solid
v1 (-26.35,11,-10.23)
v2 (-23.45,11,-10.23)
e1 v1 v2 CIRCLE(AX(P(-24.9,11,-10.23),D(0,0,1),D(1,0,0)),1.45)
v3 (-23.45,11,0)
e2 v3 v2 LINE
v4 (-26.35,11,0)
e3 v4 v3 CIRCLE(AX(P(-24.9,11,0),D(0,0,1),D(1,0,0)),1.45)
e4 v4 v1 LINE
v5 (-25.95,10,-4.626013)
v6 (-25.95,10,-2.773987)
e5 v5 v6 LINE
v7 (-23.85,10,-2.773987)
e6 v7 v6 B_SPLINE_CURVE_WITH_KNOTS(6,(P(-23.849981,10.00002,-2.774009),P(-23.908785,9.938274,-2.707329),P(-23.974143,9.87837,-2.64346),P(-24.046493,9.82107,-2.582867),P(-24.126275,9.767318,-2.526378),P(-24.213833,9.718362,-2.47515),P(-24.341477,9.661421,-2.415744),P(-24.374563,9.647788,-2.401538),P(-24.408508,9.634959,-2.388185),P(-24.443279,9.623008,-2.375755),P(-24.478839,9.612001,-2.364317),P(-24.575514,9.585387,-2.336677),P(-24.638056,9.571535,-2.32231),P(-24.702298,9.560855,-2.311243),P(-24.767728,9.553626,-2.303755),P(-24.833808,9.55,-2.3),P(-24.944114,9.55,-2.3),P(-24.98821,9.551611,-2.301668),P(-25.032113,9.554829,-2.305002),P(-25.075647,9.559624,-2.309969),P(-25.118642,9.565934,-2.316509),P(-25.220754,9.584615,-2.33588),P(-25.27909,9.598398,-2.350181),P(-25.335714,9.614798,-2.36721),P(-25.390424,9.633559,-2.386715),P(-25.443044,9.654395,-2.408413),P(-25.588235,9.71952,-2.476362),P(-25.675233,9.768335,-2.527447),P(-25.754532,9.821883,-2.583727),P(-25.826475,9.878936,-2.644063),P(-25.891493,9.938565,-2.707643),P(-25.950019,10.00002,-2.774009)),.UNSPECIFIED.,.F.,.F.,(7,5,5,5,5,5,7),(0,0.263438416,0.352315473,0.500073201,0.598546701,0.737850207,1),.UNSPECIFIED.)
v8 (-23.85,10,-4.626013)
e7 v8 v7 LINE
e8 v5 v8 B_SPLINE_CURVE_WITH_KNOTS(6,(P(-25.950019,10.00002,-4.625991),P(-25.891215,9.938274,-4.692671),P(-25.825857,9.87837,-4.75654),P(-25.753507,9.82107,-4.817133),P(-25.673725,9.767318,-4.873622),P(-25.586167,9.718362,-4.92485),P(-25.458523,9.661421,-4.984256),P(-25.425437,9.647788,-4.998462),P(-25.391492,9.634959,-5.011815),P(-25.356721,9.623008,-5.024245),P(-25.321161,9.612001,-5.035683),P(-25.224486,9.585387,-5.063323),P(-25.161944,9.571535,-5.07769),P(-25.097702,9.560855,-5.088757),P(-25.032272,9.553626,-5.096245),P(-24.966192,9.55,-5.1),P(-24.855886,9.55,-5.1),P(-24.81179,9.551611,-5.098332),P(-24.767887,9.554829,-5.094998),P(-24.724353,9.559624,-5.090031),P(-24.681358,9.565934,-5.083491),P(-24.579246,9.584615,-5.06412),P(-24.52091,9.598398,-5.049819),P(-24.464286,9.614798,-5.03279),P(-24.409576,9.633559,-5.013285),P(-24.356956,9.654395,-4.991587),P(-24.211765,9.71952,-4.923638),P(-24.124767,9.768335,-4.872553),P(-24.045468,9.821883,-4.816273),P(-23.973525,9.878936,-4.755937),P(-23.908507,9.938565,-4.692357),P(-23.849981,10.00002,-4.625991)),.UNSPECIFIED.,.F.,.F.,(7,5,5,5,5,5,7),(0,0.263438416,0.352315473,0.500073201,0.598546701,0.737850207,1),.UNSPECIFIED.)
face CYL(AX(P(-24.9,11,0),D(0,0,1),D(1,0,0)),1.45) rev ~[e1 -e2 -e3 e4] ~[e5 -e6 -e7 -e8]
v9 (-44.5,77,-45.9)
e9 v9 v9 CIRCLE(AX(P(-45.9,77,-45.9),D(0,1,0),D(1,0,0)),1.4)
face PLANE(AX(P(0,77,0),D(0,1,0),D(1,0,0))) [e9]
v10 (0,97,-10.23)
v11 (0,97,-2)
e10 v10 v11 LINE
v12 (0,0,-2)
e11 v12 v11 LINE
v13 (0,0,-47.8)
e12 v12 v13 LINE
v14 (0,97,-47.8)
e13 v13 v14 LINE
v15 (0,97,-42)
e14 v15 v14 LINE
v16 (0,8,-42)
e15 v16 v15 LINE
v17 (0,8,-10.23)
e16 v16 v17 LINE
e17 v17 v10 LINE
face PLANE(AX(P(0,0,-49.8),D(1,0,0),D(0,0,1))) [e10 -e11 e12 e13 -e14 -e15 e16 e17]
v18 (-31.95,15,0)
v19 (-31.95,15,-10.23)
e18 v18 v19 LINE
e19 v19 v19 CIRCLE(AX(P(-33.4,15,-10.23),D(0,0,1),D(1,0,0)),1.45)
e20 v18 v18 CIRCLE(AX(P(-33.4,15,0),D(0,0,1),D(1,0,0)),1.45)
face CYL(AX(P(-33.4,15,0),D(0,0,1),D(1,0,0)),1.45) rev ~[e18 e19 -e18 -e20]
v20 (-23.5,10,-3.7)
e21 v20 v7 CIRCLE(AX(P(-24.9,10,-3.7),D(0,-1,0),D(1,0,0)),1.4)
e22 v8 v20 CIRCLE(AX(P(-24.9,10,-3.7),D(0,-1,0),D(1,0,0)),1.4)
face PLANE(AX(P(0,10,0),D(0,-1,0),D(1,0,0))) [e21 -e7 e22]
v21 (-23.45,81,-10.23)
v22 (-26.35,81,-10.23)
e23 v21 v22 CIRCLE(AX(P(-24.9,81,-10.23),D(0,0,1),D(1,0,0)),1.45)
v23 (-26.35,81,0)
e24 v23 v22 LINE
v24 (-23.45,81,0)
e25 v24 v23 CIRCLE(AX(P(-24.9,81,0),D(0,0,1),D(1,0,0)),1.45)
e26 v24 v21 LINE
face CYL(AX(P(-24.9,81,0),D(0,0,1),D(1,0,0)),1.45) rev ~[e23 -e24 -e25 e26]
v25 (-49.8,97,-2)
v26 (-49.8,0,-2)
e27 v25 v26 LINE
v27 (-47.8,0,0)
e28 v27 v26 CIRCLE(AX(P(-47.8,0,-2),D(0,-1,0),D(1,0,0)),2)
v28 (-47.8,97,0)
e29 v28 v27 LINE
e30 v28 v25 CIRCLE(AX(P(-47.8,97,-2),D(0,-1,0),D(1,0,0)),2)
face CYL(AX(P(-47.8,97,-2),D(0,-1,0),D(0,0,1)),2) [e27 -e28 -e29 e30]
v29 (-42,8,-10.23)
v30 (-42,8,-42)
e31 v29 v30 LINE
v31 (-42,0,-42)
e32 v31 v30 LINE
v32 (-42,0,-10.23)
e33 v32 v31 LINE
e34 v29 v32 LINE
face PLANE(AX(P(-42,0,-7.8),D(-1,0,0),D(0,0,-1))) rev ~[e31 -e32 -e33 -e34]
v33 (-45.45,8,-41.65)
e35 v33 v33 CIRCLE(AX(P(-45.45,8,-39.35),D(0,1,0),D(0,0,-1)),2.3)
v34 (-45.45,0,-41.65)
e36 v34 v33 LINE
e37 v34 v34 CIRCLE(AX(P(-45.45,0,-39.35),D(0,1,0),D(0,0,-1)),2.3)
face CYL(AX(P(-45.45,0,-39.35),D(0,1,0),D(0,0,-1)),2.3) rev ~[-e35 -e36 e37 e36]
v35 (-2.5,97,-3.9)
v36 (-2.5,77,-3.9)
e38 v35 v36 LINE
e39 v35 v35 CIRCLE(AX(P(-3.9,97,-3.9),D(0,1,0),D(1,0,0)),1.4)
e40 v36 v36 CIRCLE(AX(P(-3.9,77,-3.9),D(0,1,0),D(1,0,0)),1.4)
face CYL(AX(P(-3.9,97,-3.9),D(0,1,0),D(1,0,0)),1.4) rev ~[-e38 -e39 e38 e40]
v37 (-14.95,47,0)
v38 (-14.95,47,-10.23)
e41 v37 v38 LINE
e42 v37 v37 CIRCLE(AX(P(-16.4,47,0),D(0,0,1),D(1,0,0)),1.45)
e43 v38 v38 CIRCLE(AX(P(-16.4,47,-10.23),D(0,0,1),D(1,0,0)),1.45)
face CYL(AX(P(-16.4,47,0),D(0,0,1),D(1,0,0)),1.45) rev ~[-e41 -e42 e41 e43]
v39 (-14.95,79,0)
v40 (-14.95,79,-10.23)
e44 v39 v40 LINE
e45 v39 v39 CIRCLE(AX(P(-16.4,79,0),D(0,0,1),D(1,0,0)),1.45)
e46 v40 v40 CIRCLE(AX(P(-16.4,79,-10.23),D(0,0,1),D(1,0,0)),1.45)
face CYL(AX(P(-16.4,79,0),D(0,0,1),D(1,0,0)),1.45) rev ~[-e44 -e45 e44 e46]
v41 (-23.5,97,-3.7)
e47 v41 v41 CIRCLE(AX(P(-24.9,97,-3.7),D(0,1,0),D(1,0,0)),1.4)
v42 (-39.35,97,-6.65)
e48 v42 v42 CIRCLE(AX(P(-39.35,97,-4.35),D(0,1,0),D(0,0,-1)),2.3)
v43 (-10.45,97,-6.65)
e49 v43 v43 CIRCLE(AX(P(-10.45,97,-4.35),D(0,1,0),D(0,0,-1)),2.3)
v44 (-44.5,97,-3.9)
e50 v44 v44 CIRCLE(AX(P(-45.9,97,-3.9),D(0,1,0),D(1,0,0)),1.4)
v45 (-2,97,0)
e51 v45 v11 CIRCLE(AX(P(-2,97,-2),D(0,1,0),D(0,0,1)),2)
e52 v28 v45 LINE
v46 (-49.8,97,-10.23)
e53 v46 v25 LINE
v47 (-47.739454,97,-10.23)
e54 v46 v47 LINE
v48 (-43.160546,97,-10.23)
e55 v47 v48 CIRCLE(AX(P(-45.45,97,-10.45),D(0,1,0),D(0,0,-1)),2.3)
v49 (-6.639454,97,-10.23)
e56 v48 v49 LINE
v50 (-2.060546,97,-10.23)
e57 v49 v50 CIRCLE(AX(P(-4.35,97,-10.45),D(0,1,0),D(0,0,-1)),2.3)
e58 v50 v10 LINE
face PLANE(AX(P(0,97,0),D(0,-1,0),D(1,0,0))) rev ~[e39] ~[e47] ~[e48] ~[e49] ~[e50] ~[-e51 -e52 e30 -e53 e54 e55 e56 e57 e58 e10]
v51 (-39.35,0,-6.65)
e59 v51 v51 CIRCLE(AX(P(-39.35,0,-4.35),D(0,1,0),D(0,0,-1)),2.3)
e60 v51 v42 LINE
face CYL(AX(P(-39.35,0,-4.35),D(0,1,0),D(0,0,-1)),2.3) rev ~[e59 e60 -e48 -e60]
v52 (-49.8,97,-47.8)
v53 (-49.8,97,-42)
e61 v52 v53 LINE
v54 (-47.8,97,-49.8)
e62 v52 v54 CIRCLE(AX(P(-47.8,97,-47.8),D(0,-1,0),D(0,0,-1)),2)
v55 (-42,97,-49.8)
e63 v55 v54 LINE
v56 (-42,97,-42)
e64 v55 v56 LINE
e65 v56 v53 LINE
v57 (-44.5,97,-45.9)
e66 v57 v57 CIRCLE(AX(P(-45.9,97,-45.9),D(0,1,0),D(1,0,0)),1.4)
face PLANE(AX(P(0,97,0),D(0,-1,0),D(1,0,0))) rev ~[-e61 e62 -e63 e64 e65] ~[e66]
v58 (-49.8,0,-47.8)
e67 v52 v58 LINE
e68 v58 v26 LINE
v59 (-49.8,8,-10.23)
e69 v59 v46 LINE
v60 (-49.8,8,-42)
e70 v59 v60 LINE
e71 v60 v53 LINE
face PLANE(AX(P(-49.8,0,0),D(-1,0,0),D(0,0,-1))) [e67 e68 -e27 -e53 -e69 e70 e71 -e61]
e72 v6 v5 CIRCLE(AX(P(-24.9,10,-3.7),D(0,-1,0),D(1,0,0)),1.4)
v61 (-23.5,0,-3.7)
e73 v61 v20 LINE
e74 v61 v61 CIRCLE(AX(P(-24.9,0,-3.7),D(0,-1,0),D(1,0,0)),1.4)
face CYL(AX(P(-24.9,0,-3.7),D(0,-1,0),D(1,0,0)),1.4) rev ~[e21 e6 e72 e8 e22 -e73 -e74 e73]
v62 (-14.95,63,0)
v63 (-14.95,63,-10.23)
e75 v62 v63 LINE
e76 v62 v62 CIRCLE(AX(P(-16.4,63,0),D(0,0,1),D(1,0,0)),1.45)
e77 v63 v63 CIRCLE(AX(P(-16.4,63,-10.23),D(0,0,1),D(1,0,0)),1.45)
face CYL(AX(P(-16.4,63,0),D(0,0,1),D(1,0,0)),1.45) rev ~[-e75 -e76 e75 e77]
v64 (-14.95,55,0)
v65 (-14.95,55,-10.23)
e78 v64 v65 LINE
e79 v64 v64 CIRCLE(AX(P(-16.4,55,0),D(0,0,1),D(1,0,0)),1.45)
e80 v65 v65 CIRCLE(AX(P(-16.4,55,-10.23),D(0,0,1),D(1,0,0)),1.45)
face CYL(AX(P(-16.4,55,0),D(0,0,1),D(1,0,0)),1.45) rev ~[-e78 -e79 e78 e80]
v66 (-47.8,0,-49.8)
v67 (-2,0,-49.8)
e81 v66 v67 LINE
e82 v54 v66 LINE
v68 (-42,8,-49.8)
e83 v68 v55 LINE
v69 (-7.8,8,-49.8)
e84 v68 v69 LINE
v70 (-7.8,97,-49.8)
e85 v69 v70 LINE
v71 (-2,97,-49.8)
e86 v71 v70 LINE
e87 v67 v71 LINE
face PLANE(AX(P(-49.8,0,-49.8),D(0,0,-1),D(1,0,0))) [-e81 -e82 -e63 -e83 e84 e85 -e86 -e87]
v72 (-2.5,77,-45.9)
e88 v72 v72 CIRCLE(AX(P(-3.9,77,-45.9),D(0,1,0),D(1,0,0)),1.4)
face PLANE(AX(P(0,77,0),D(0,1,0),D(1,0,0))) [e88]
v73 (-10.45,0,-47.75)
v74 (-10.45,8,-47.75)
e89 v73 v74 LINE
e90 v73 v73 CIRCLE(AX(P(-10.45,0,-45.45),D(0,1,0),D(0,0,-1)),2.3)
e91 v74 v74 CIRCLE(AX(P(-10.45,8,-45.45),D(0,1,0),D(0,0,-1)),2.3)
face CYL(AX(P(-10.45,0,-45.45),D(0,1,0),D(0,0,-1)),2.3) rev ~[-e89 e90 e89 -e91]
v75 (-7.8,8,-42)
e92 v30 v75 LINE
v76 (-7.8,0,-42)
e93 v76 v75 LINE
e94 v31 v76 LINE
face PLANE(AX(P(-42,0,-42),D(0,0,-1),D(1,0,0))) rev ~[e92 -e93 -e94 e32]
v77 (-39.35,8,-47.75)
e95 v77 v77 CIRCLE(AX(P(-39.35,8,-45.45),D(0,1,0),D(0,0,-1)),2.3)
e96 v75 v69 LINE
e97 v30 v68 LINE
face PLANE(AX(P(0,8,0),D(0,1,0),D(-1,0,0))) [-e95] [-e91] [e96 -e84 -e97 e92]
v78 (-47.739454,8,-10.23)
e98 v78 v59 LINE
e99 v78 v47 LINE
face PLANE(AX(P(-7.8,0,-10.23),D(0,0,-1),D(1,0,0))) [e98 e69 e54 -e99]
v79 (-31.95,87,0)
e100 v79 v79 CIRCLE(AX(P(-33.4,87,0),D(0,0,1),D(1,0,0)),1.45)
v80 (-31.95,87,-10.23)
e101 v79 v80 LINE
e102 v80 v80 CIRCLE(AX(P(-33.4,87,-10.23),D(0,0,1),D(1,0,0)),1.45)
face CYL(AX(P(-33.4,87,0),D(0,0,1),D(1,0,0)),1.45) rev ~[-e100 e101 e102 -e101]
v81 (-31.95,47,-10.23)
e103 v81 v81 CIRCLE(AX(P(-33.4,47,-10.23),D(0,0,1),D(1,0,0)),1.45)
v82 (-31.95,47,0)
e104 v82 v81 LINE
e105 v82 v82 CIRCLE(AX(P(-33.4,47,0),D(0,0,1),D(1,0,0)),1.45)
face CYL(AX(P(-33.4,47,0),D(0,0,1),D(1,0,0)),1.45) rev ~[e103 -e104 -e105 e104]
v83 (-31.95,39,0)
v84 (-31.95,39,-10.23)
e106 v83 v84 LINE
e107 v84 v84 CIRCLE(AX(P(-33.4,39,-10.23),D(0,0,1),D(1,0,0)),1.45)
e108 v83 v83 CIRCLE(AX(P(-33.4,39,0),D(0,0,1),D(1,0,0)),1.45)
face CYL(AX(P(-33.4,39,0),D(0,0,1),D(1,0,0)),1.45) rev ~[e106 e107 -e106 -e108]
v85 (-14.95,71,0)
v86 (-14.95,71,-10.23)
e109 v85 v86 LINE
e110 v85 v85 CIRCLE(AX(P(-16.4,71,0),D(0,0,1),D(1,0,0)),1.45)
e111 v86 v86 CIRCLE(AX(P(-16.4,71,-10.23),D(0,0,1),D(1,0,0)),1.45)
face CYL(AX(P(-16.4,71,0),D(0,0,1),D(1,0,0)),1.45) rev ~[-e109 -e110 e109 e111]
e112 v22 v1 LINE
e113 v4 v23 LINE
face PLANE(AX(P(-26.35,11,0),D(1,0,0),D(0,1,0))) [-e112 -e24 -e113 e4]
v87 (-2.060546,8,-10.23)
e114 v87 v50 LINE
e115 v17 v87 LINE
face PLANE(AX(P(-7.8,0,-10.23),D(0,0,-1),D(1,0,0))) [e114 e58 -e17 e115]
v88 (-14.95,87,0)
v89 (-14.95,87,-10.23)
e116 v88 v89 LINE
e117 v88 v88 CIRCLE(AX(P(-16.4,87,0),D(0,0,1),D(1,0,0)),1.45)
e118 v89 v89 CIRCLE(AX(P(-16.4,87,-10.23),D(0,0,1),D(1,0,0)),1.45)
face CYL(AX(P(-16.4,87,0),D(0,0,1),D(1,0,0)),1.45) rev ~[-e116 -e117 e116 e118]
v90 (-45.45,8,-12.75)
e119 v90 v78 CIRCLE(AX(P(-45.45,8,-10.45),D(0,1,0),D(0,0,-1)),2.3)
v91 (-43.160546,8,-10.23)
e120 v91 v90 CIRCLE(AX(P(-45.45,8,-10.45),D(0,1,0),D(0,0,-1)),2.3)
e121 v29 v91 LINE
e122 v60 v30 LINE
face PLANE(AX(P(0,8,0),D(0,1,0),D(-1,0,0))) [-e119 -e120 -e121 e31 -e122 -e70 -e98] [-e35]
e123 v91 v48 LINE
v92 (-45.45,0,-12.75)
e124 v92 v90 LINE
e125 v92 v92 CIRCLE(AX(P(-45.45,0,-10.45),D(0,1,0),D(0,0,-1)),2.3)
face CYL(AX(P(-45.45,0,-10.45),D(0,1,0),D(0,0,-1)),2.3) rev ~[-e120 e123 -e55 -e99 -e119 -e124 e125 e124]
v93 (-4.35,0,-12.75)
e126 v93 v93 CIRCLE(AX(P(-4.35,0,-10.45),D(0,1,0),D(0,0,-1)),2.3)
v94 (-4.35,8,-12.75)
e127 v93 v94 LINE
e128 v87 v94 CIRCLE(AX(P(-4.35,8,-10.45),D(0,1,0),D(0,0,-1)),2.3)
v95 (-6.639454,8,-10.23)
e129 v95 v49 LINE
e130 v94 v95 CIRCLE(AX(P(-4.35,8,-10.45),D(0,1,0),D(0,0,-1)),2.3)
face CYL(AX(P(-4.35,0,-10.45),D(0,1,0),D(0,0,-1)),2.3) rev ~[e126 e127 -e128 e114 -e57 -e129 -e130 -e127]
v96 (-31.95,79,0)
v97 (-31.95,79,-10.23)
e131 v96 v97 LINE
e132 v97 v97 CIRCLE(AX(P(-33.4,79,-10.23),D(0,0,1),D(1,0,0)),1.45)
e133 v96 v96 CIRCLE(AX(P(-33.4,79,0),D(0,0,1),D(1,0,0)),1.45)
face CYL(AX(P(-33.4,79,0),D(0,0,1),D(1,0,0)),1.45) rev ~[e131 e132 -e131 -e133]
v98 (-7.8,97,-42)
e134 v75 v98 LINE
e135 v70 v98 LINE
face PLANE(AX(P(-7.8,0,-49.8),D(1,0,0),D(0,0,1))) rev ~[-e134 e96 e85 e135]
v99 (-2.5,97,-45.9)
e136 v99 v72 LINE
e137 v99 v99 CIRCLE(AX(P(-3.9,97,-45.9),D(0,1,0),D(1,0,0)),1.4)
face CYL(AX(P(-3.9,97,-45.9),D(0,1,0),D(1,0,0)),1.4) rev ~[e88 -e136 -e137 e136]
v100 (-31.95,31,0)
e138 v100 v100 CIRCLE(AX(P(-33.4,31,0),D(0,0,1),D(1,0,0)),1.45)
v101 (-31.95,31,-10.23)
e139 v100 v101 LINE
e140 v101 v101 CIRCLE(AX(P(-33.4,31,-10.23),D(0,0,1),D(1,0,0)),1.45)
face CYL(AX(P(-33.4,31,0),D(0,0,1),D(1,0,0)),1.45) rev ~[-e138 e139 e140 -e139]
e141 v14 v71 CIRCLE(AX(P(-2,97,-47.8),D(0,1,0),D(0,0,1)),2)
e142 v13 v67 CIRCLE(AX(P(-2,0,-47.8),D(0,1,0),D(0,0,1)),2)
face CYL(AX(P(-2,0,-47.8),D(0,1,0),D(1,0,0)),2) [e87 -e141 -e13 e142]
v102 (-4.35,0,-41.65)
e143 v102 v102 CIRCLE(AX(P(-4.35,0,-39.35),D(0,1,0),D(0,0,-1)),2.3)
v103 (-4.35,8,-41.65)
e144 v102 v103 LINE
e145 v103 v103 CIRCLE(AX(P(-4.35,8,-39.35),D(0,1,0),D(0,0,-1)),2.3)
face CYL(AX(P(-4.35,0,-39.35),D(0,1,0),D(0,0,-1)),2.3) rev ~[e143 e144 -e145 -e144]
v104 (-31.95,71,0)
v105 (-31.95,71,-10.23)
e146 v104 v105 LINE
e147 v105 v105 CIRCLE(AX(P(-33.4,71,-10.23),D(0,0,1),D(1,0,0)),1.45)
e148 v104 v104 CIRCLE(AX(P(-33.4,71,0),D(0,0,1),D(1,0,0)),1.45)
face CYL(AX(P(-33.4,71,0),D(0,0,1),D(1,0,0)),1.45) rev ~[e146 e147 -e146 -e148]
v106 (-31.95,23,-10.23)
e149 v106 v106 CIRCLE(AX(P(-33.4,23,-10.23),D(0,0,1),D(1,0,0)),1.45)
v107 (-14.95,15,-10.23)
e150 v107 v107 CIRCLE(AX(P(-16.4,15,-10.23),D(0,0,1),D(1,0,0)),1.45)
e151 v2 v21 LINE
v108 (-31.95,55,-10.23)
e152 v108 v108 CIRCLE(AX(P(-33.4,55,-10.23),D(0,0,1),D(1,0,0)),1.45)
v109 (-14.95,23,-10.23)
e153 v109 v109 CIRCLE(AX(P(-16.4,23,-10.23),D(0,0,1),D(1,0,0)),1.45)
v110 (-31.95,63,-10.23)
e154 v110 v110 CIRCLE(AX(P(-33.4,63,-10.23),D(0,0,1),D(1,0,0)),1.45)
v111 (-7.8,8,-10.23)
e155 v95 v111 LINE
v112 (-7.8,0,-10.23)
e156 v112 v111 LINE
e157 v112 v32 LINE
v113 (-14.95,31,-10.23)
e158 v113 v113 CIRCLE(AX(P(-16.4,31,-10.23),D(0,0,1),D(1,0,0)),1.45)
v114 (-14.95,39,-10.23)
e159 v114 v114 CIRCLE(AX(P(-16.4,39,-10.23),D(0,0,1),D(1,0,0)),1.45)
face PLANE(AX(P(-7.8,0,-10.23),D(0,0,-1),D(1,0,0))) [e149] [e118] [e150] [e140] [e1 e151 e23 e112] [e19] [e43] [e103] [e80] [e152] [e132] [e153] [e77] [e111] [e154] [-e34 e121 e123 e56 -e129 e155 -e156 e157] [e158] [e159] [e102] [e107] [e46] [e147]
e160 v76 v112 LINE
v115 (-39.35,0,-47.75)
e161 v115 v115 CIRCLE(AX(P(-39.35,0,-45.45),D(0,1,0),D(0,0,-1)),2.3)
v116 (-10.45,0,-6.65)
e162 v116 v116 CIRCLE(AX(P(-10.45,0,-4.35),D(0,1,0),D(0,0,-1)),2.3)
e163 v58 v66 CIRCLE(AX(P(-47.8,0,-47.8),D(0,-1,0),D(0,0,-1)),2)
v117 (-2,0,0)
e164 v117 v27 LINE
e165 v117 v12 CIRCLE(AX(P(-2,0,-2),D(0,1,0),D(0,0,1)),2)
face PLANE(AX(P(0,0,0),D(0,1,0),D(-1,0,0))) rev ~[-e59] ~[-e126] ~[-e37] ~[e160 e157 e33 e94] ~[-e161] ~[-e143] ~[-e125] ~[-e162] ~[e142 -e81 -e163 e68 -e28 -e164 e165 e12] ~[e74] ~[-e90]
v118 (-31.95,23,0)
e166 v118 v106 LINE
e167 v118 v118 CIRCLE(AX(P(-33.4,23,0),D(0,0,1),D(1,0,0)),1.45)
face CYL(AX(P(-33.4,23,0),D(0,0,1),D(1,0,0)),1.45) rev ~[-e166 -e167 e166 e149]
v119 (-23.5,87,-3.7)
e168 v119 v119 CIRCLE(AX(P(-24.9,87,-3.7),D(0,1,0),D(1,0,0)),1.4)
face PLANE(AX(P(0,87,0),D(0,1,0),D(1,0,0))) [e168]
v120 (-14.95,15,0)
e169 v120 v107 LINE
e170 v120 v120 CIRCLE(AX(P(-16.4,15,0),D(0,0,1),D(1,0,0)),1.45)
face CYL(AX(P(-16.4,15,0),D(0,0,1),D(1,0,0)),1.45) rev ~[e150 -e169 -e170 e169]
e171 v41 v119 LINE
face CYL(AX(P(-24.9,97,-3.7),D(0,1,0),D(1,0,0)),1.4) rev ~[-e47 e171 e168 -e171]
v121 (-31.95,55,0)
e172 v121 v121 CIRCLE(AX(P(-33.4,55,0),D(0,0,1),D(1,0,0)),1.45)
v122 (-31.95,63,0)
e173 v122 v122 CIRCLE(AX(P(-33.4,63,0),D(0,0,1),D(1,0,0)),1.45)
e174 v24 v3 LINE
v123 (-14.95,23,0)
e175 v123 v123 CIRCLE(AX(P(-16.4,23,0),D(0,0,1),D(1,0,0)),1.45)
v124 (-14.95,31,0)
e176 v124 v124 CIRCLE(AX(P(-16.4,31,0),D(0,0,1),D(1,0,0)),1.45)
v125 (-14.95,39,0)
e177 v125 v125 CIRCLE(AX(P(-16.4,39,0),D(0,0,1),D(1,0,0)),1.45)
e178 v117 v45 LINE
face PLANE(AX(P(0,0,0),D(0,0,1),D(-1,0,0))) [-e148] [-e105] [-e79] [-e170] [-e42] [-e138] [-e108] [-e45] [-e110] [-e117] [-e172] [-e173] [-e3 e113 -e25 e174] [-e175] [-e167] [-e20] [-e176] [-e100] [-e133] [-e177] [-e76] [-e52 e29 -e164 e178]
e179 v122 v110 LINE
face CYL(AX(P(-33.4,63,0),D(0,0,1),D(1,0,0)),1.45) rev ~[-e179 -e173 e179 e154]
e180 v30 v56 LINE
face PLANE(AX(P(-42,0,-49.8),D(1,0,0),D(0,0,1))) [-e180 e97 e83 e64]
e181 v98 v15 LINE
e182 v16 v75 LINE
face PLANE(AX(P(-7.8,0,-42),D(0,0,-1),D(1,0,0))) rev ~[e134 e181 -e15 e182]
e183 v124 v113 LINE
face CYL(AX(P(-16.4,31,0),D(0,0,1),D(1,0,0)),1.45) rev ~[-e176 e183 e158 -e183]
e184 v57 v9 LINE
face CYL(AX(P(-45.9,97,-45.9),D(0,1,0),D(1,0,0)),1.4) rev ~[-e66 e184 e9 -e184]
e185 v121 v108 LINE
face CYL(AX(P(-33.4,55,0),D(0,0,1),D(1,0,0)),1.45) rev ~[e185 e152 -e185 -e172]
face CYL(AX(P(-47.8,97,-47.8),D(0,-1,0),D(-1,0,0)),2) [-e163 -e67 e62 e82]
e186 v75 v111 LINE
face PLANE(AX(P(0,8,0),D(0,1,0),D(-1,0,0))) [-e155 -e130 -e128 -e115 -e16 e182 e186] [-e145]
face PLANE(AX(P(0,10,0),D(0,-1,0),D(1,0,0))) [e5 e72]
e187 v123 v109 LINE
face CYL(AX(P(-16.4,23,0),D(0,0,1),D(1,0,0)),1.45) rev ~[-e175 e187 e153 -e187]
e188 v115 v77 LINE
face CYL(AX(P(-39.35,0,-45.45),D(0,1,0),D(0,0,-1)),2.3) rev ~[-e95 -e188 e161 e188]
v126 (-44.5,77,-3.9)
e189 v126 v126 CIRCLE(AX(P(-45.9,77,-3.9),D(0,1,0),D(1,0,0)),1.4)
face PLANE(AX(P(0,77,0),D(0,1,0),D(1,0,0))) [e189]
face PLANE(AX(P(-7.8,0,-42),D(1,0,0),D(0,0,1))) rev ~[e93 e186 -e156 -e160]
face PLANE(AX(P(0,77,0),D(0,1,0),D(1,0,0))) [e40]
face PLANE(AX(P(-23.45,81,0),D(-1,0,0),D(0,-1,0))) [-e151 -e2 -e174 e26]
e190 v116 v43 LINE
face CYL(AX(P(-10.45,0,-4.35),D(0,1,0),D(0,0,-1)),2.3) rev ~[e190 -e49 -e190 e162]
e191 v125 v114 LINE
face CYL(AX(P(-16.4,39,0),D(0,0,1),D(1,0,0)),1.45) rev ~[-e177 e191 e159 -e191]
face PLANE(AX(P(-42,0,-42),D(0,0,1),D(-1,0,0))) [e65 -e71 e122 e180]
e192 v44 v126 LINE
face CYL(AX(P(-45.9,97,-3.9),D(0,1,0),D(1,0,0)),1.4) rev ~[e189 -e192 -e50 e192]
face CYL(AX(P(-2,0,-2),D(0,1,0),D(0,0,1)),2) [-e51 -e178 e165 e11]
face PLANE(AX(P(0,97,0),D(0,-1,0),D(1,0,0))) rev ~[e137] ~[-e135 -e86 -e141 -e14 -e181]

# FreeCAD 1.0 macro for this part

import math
import FreeCAD as App
import Part
import Sketcher
from FreeCAD import Vector
Q = App.Units.Quantity


def edges_at(feature, points):
    """Names of the edges that pass closest to the given points."""
    edges = feature.Shape.Edges
    near = lambda p: min(range(len(edges)), key=lambda i: edges[i].distToShape(Part.Vertex(*p))[0])
    return sorted({f"Edge{near(p) + 1}" for p in points})

doc = App.newDocument("Part")
body = doc.addObject("PartDesign::Body", "Body")

# Sketch on XZ plane
sketch1 = body.newObject("Sketcher::SketchObject", "Sketch")
sketch1.AttachmentSupport = (doc.getObject("XZ_Plane"), [""])
sketch1.MapMode = "FlatFace"
sketch1.addGeometry(Part.LineSegment(Vector(-50, 0, 0), Vector(0, 0, 0)), False)
sketch1.addGeometry(Part.LineSegment(Vector(0, 0, 0), Vector(0, -50, 0)), False)
sketch1.addGeometry(Part.LineSegment(Vector(0, -50, 0), Vector(-50, -50, 0)), False)
sketch1.addGeometry(Part.LineSegment(Vector(-50, -50, 0), Vector(-50, 0, 0)), False)
sketch1.addGeometry(Part.LineSegment(Vector(-8, -42, 0), Vector(-8, -8, 0)), False)
sketch1.addGeometry(Part.LineSegment(Vector(-8, -8, 0), Vector(-42, -8, 0)), False)
sketch1.addGeometry(Part.LineSegment(Vector(-42, -8, 0), Vector(-42, -42, 0)), False)
sketch1.addGeometry(Part.LineSegment(Vector(-42, -42, 0), Vector(-8, -42, 0)), False)
sketch1.addConstraint(Sketcher.Constraint("Coincident", 0, 2, 1, 1))
sketch1.addConstraint(Sketcher.Constraint("Coincident", 1, 2, 2, 1))
sketch1.addConstraint(Sketcher.Constraint("Coincident", 2, 2, 3, 1))
sketch1.addConstraint(Sketcher.Constraint("Coincident", 3, 2, 0, 1))
sketch1.addConstraint(Sketcher.Constraint("Coincident", 4, 2, 5, 1))
sketch1.addConstraint(Sketcher.Constraint("Coincident", 5, 2, 6, 1))
sketch1.addConstraint(Sketcher.Constraint("Coincident", 6, 2, 7, 1))
sketch1.addConstraint(Sketcher.Constraint("Coincident", 7, 2, 4, 1))
sketch1.addConstraint(Sketcher.Constraint("Horizontal", 0))
sketch1.addConstraint(Sketcher.Constraint("Vertical", 1))
sketch1.addConstraint(Sketcher.Constraint("Horizontal", 2))
sketch1.addConstraint(Sketcher.Constraint("Vertical", 3))
sketch1.addConstraint(Sketcher.Constraint("Vertical", 4))
sketch1.addConstraint(Sketcher.Constraint("Horizontal", 5))
sketch1.addConstraint(Sketcher.Constraint("Vertical", 6))
sketch1.addConstraint(Sketcher.Constraint("Horizontal", 7))
sketch1.addConstraint(Sketcher.Constraint("Coincident", 0, 2, -1, 1))
sketch1.addConstraint(Sketcher.Constraint("Equal", 2, 1))
sketch1.addConstraint(Sketcher.Constraint("Equal", 7, 4))
sketch1.addConstraint(Sketcher.Constraint("DistanceX", 0, 1, 0, 2, Q("49.8 mm")))
sketch1.addConstraint(Sketcher.Constraint("DistanceX", 4, 2, -1, 1, Q("7.8 mm")))
sketch1.addConstraint(Sketcher.Constraint("DistanceY", 4, 2, -1, 1, Q("7.8 mm")))
sketch1.addConstraint(Sketcher.Constraint("DistanceX", 3, 2, 5, 2, Q("7.8 mm")))
pad1 = body.newObject("PartDesign::Pad", "Pad")
pad1.Profile = sketch1
pad1.Length = 8
pad1.Reversed = True

# Sketch on XZ plane
sketch2 = body.newObject("Sketcher::SketchObject", "Sketch001")
sketch2.AttachmentSupport = (doc.getObject("XZ_Plane"), [""])
sketch2.MapMode = "FlatFace"
sketch2.addGeometry(Part.LineSegment(Vector(0, 0, 0), Vector(-50, 0, 0)), False)
sketch2.addGeometry(Part.LineSegment(Vector(-50, 0, 0), Vector(-50, -10, 0)), False)
sketch2.addGeometry(Part.LineSegment(Vector(-50, -10, 0), Vector(0, -10, 0)), False)
sketch2.addGeometry(Part.LineSegment(Vector(0, -10, 0), Vector(0, 0, 0)), False)
sketch2.addGeometry(Part.LineSegment(Vector(-42, -42, 0), Vector(-50, -42, 0)), False)
sketch2.addGeometry(Part.LineSegment(Vector(-50, -42, 0), Vector(-50, -50, 0)), False)
sketch2.addGeometry(Part.LineSegment(Vector(-50, -50, 0), Vector(-42, -50, 0)), False)
sketch2.addGeometry(Part.LineSegment(Vector(-42, -50, 0), Vector(-42, -42, 0)), False)
sketch2.addGeometry(Part.LineSegment(Vector(0, -42, 0), Vector(-8, -42, 0)), False)
sketch2.addGeometry(Part.LineSegment(Vector(-8, -42, 0), Vector(-8, -50, 0)), False)
sketch2.addGeometry(Part.LineSegment(Vector(-8, -50, 0), Vector(0, -50, 0)), False)
sketch2.addGeometry(Part.LineSegment(Vector(0, -50, 0), Vector(0, -42, 0)), False)
sketch2.addConstraint(Sketcher.Constraint("Coincident", 0, 2, 1, 1))
sketch2.addConstraint(Sketcher.Constraint("Coincident", 1, 2, 2, 1))
sketch2.addConstraint(Sketcher.Constraint("Coincident", 2, 2, 3, 1))
sketch2.addConstraint(Sketcher.Constraint("Coincident", 3, 2, 0, 1))
sketch2.addConstraint(Sketcher.Constraint("Coincident", 4, 2, 5, 1))
sketch2.addConstraint(Sketcher.Constraint("Coincident", 5, 2, 6, 1))
sketch2.addConstraint(Sketcher.Constraint("Coincident", 6, 2, 7, 1))
sketch2.addConstraint(Sketcher.Constraint("Coincident", 7, 2, 4, 1))
sketch2.addConstraint(Sketcher.Constraint("Coincident", 8, 2, 9, 1))
sketch2.addConstraint(Sketcher.Constraint("Coincident", 9, 2, 10, 1))
sketch2.addConstraint(Sketcher.Constraint("Coincident", 10, 2, 11, 1))
sketch2.addConstraint(Sketcher.Constraint("Coincident", 11, 2, 8, 1))
sketch2.addConstraint(Sketcher.Constraint("Horizontal", 0))
sketch2.addConstraint(Sketcher.Constraint("Vertical", 1))
sketch2.addConstraint(Sketcher.Constraint("Horizontal", 2))
sketch2.addConstraint(Sketcher.Constraint("Vertical", 3))
sketch2.addConstraint(Sketcher.Constraint("Horizontal", 4))
sketch2.addConstraint(Sketcher.Constraint("Vertical", 5))
sketch2.addConstraint(Sketcher.Constraint("Horizontal", 6))
sketch2.addConstraint(Sketcher.Constraint("Vertical", 7))
sketch2.addConstraint(Sketcher.Constraint("Horizontal", 8))
sketch2.addConstraint(Sketcher.Constraint("Vertical", 9))
sketch2.addConstraint(Sketcher.Constraint("Horizontal", 10))
sketch2.addConstraint(Sketcher.Constraint("Vertical", 11))
sketch2.addConstraint(Sketcher.Constraint("Coincident", 3, 2, -1, 1))
sketch2.addConstraint(Sketcher.Constraint("PointOnObject", 10, 2, -2))
sketch2.addConstraint(Sketcher.Constraint("Horizontal", 7, 2, 8, 2))
sketch2.addConstraint(Sketcher.Constraint("Horizontal", 6, 2, 9, 2))
sketch2.addConstraint(Sketcher.Constraint("Vertical", 1, 2, 4, 2))
sketch2.addConstraint(Sketcher.Constraint("Equal", 6, 8))
sketch2.addConstraint(Sketcher.Constraint("Equal", 10, 5))
sketch2.addConstraint(Sketcher.Constraint("DistanceY", 1, 2, 1, 1, Q("10.23 mm")))
sketch2.addConstraint(Sketcher.Constraint("DistanceX", 0, 2, 0, 1, Q("49.8 mm")))
sketch2.addConstraint(Sketcher.Constraint("DistanceX", 4, 2, 4, 1, Q("7.8 mm")))
sketch2.addConstraint(Sketcher.Constraint("DistanceY", 4, 2, -1, 1, Q("42 mm")))
pad2 = body.newObject("PartDesign::Pad", "Pad001")
pad2.Profile = sketch2
pad2.Length = 97
pad2.Reversed = True

# Sketch on XY plane
sketch3 = body.newObject("Sketcher::SketchObject", "Sketch002")
sketch3.AttachmentSupport = (doc.getObject("XY_Plane"), [""])
sketch3.MapMode = "FlatFace"
sketch3.addGeometry(Part.ArcOfCircle(Part.Circle(Vector(-24.9, 81, 0), Vector(0, 0, 1), 1.4), math.radians(0), math.radians(180)), False)
sketch3.addGeometry(Part.LineSegment(Vector(-26.4, 81, 0), Vector(-26.4, 11, 0)), False)
sketch3.addGeometry(Part.ArcOfCircle(Part.Circle(Vector(-24.9, 11, 0), Vector(0, 0, 1), 1.4), math.radians(180), math.radians(360)), False)
sketch3.addGeometry(Part.LineSegment(Vector(-23.4, 11, 0), Vector(-23.4, 81, 0)), False)
sketch3.addGeometry(Part.Circle(Vector(-33.4, 87, 0), Vector(0, 0, 1), 1.4), False)
sketch3.addGeometry(Part.Circle(Vector(-16.4, 87, 0), Vector(0, 0, 1), 1.4), False)
sketch3.addGeometry(Part.Circle(Vector(-33.4, 79, 0), Vector(0, 0, 1), 1.4), False)
sketch3.addGeometry(Part.Circle(Vector(-16.4, 79, 0), Vector(0, 0, 1), 1.4), False)
sketch3.addGeometry(Part.Circle(Vector(-33.4, 71, 0), Vector(0, 0, 1), 1.4), False)
sketch3.addGeometry(Part.Circle(Vector(-16.4, 71, 0), Vector(0, 0, 1), 1.4), False)
sketch3.addGeometry(Part.Circle(Vector(-33.4, 63, 0), Vector(0, 0, 1), 1.4), False)
sketch3.addGeometry(Part.Circle(Vector(-16.4, 63, 0), Vector(0, 0, 1), 1.4), False)
sketch3.addGeometry(Part.Circle(Vector(-33.4, 55, 0), Vector(0, 0, 1), 1.4), False)
sketch3.addGeometry(Part.Circle(Vector(-16.4, 55, 0), Vector(0, 0, 1), 1.4), False)
sketch3.addGeometry(Part.Circle(Vector(-33.4, 47, 0), Vector(0, 0, 1), 1.4), False)
sketch3.addGeometry(Part.Circle(Vector(-16.4, 47, 0), Vector(0, 0, 1), 1.4), False)
sketch3.addGeometry(Part.Circle(Vector(-33.4, 39, 0), Vector(0, 0, 1), 1.4), False)
sketch3.addGeometry(Part.Circle(Vector(-16.4, 39, 0), Vector(0, 0, 1), 1.4), False)
sketch3.addGeometry(Part.Circle(Vector(-33.4, 31, 0), Vector(0, 0, 1), 1.4), False)
sketch3.addGeometry(Part.Circle(Vector(-16.4, 31, 0), Vector(0, 0, 1), 1.4), False)
sketch3.addGeometry(Part.Circle(Vector(-33.4, 23, 0), Vector(0, 0, 1), 1.4), False)
sketch3.addGeometry(Part.Circle(Vector(-16.4, 23, 0), Vector(0, 0, 1), 1.4), False)
sketch3.addGeometry(Part.Circle(Vector(-33.4, 15, 0), Vector(0, 0, 1), 1.4), False)
sketch3.addGeometry(Part.Circle(Vector(-16.4, 15, 0), Vector(0, 0, 1), 1.4), False)
sketch3.addConstraint(Sketcher.Constraint("Tangent", 0, 2, 1, 1))
sketch3.addConstraint(Sketcher.Constraint("Tangent", 1, 2, 2, 1))
sketch3.addConstraint(Sketcher.Constraint("Tangent", 2, 2, 3, 1))
sketch3.addConstraint(Sketcher.Constraint("Tangent", 3, 2, 0, 1))
sketch3.addConstraint(Sketcher.Constraint("Vertical", 1))
sketch3.addConstraint(Sketcher.Constraint("Vertical", 3))
sketch3.addConstraint(Sketcher.Constraint("Equal", 2, 4))
sketch3.addConstraint(Sketcher.Constraint("Equal", 4, 5))
sketch3.addConstraint(Sketcher.Constraint("Equal", 5, 6))
sketch3.addConstraint(Sketcher.Constraint("Equal", 6, 7))
sketch3.addConstraint(Sketcher.Constraint("Equal", 7, 8))
sketch3.addConstraint(Sketcher.Constraint("Equal", 8, 9))
sketch3.addConstraint(Sketcher.Constraint("Equal", 9, 10))
sketch3.addConstraint(Sketcher.Constraint("Equal", 10, 11))
sketch3.addConstraint(Sketcher.Constraint("Equal", 11, 12))
sketch3.addConstraint(Sketcher.Constraint("Equal", 12, 13))
sketch3.addConstraint(Sketcher.Constraint("Equal", 13, 14))
sketch3.addConstraint(Sketcher.Constraint("Equal", 14, 15))
sketch3.addConstraint(Sketcher.Constraint("Equal", 15, 16))
sketch3.addConstraint(Sketcher.Constraint("Equal", 16, 17))
sketch3.addConstraint(Sketcher.Constraint("Equal", 17, 18))
sketch3.addConstraint(Sketcher.Constraint("Equal", 18, 19))
sketch3.addConstraint(Sketcher.Constraint("Equal", 19, 20))
sketch3.addConstraint(Sketcher.Constraint("Equal", 20, 21))
sketch3.addConstraint(Sketcher.Constraint("Equal", 21, 22))
sketch3.addConstraint(Sketcher.Constraint("Equal", 22, 23))
sketch3.addConstraint(Sketcher.Constraint("Horizontal", 4, 3, 5, 3))
sketch3.addConstraint(Sketcher.Constraint("Horizontal", 6, 3, 7, 3))
sketch3.addConstraint(Sketcher.Constraint("Horizontal", 8, 3, 9, 3))
sketch3.addConstraint(Sketcher.Constraint("Horizontal", 10, 3, 11, 3))
sketch3.addConstraint(Sketcher.Constraint("Horizontal", 12, 3, 13, 3))
sketch3.addConstraint(Sketcher.Constraint("Horizontal", 14, 3, 15, 3))
sketch3.addConstraint(Sketcher.Constraint("Horizontal", 16, 3, 17, 3))
sketch3.addConstraint(Sketcher.Constraint("Horizontal", 18, 3, 19, 3))
sketch3.addConstraint(Sketcher.Constraint("Horizontal", 20, 3, 21, 3))
sketch3.addConstraint(Sketcher.Constraint("Horizontal", 22, 3, 23, 3))
sketch3.addConstraint(Sketcher.Constraint("Vertical", 4, 3, 6, 3))
sketch3.addConstraint(Sketcher.Constraint("Vertical", 5, 3, 7, 3))
sketch3.addConstraint(Sketcher.Constraint("Vertical", 6, 3, 8, 3))
sketch3.addConstraint(Sketcher.Constraint("Vertical", 7, 3, 9, 3))
sketch3.addConstraint(Sketcher.Constraint("Vertical", 8, 3, 10, 3))
sketch3.addConstraint(Sketcher.Constraint("Vertical", 9, 3, 11, 3))
sketch3.addConstraint(Sketcher.Constraint("Vertical", 10, 3, 12, 3))
sketch3.addConstraint(Sketcher.Constraint("Vertical", 11, 3, 13, 3))
sketch3.addConstraint(Sketcher.Constraint("Vertical", 12, 3, 14, 3))
sketch3.addConstraint(Sketcher.Constraint("Vertical", 13, 3, 15, 3))
sketch3.addConstraint(Sketcher.Constraint("Vertical", 14, 3, 16, 3))
sketch3.addConstraint(Sketcher.Constraint("Vertical", 15, 3, 17, 3))
sketch3.addConstraint(Sketcher.Constraint("Vertical", 16, 3, 18, 3))
sketch3.addConstraint(Sketcher.Constraint("Vertical", 17, 3, 19, 3))
sketch3.addConstraint(Sketcher.Constraint("Vertical", 18, 3, 20, 3))
sketch3.addConstraint(Sketcher.Constraint("Vertical", 19, 3, 21, 3))
sketch3.addConstraint(Sketcher.Constraint("Vertical", 20, 3, 22, 3))
sketch3.addConstraint(Sketcher.Constraint("Vertical", 21, 3, 23, 3))
sketch3.addConstraint(Sketcher.Constraint("Diameter", 4, Q("2.9 mm")))
sketch3.addConstraint(Sketcher.Constraint("DistanceY", 1, 2, 1, 1, Q("70 mm")))
sketch3.addConstraint(Sketcher.Constraint("DistanceY", -1, 1, 2, 3, Q("11 mm")))
sketch3.addConstraint(Sketcher.Constraint("DistanceY", 6, 3, 4, 3, Q("8 mm")))
sketch3.addConstraint(Sketcher.Constraint("DistanceY", 8, 3, 6, 3, Q("8 mm")))
sketch3.addConstraint(Sketcher.Constraint("DistanceY", 8, 3, 0, 3, Q("10 mm")))
sketch3.addConstraint(Sketcher.Constraint("DistanceY", 10, 3, 8, 3, Q("8 mm")))
sketch3.addConstraint(Sketcher.Constraint("DistanceY", 12, 3, 10, 3, Q("8 mm")))
sketch3.addConstraint(Sketcher.Constraint("DistanceY", 14, 3, 12, 3, Q("8 mm")))
sketch3.addConstraint(Sketcher.Constraint("DistanceY", 16, 3, 14, 3, Q("8 mm")))
sketch3.addConstraint(Sketcher.Constraint("DistanceY", 18, 3, 16, 3, Q("8 mm")))
sketch3.addConstraint(Sketcher.Constraint("DistanceY", 20, 3, 18, 3, Q("8 mm")))
sketch3.addConstraint(Sketcher.Constraint("DistanceY", 22, 3, 20, 3, Q("8 mm")))
sketch3.addConstraint(Sketcher.Constraint("DistanceX", 2, 2, -1, 1, Q("23.45 mm")))
sketch3.addConstraint(Sketcher.Constraint("DistanceX", 6, 3, 0, 2, Q("7.05 mm")))
sketch3.addConstraint(Sketcher.Constraint("DistanceX", 2, 2, 23, 3, Q("7.05 mm")))
pocket1 = body.newObject("PartDesign::Pocket", "Pocket")
pocket1.Profile = sketch3
pocket1.Type = "ThroughAll"

# Sketch on XZ plane
sketch4 = body.newObject("Sketcher::SketchObject", "Sketch003")
sketch4.AttachmentSupport = (doc.getObject("XZ_Plane"), [""])
sketch4.MapMode = "FlatFace"
sketch4.AttachmentOffset = App.Placement(Vector(0, 0, -97), App.Rotation())
sketch4.addGeometry(Part.Circle(Vector(-45.9, -45.9, 0), Vector(0, 0, 1), 1.4), False)
sketch4.addGeometry(Part.Circle(Vector(-3.9, -45.9, 0), Vector(0, 0, 1), 1.4), False)
sketch4.addGeometry(Part.Circle(Vector(-45.9, -3.9, 0), Vector(0, 0, 1), 1.4), False)
sketch4.addGeometry(Part.Circle(Vector(-3.9, -3.9, 0), Vector(0, 0, 1), 1.4), False)
sketch4.addConstraint(Sketcher.Constraint("Equal", 0, 1))
sketch4.addConstraint(Sketcher.Constraint("Equal", 1, 2))
sketch4.addConstraint(Sketcher.Constraint("Equal", 2, 3))
sketch4.addConstraint(Sketcher.Constraint("Horizontal", 0, 3, 1, 3))
sketch4.addConstraint(Sketcher.Constraint("Horizontal", 2, 3, 3, 3))
sketch4.addConstraint(Sketcher.Constraint("Vertical", 0, 3, 2, 3))
sketch4.addConstraint(Sketcher.Constraint("Vertical", 1, 3, 3, 3))
sketch4.addConstraint(Sketcher.Constraint("Diameter", 0, Q("2.8 mm")))
sketch4.addConstraint(Sketcher.Constraint("DistanceX", 0, 3, 1, 3, Q("42 mm")))
sketch4.addConstraint(Sketcher.Constraint("DistanceY", 0, 3, 2, 3, Q("42 mm")))
sketch4.addConstraint(Sketcher.Constraint("DistanceX", 0, 3, -1, 1, Q("45.9 mm")))
sketch4.addConstraint(Sketcher.Constraint("DistanceY", 0, 3, -1, 1, Q("45.9 mm")))
pocket2 = body.newObject("PartDesign::Pocket", "Pocket001")
pocket2.Profile = sketch4
pocket2.Length = 20
pocket2.Reversed = True

# Sketch on XZ plane
sketch5 = body.newObject("Sketcher::SketchObject", "Sketch004")
sketch5.AttachmentSupport = (doc.getObject("XZ_Plane"), [""])
sketch5.MapMode = "FlatFace"
sketch5.addGeometry(Part.Circle(Vector(-24.9, -3.7, 0), Vector(0, 0, 1), 1.4), False)
sketch5.addConstraint(Sketcher.Constraint("Diameter", 0, Q("2.8 mm")))
sketch5.addConstraint(Sketcher.Constraint("DistanceX", 0, 3, -1, 1, Q("24.9 mm")))
sketch5.addConstraint(Sketcher.Constraint("DistanceY", 0, 3, -1, 1, Q("3.7 mm")))
pocket3 = body.newObject("PartDesign::Pocket", "Pocket002")
pocket3.Profile = sketch5
pocket3.Length = 10
doc.recompute()

fillet = body.newObject("PartDesign::Fillet", "Fillet")
fillet.Base = (pocket3, edges_at(pocket3, [
    (0, 48.5, 0),
    (0, 48.5, -49.8),
    (-49.8, 48.5, -49.8),
    (-49.8, 48.5, 0),
]))
fillet.Radius = 2

# Sketch on XZ plane
sketch6 = body.newObject("Sketcher::SketchObject", "Sketch005")
sketch6.AttachmentSupport = (doc.getObject("XZ_Plane"), [""])
sketch6.MapMode = "FlatFace"
sketch6.AttachmentOffset = App.Placement(Vector(0, 0, -97), App.Rotation())
sketch6.addGeometry(Part.Circle(Vector(-24.9, -3.7, 0), Vector(0, 0, 1), 1.4), False)
sketch6.addConstraint(Sketcher.Constraint("Diameter", 0, Q("2.8 mm")))
sketch6.addConstraint(Sketcher.Constraint("DistanceX", 0, 3, -1, 1, Q("24.9 mm")))
sketch6.addConstraint(Sketcher.Constraint("DistanceY", 0, 3, -1, 1, Q("3.7 mm")))
pocket4 = body.newObject("PartDesign::Pocket", "Pocket003")
pocket4.Profile = sketch6
pocket4.Length = 10
pocket4.Reversed = True

# Sketch on XZ plane
sketch7 = body.newObject("Sketcher::SketchObject", "Sketch006")
sketch7.AttachmentSupport = (doc.getObject("XZ_Plane"), [""])
sketch7.MapMode = "FlatFace"
sketch7.addGeometry(Part.Circle(Vector(-45.5, -39.4, 0), Vector(0, 0, 1), 2.3), False)
sketch7.addGeometry(Part.Circle(Vector(-45.5, -10.4, 0), Vector(0, 0, 1), 2.3), False)
sketch7.addGeometry(Part.Circle(Vector(-39.4, -4.3, 0), Vector(0, 0, 1), 2.3), False)
sketch7.addGeometry(Part.Circle(Vector(-10.4, -4.3, 0), Vector(0, 0, 1), 2.3), False)
sketch7.addGeometry(Part.Circle(Vector(-4.3, -10.4, 0), Vector(0, 0, 1), 2.3), False)
sketch7.addGeometry(Part.Circle(Vector(-4.3, -39.4, 0), Vector(0, 0, 1), 2.3), False)
sketch7.addGeometry(Part.Circle(Vector(-10.4, -45.5, 0), Vector(0, 0, 1), 2.3), False)
sketch7.addGeometry(Part.Circle(Vector(-39.4, -45.5, 0), Vector(0, 0, 1), 2.3), False)
sketch7.addConstraint(Sketcher.Constraint("Equal", 0, 1))
sketch7.addConstraint(Sketcher.Constraint("Equal", 1, 2))
sketch7.addConstraint(Sketcher.Constraint("Equal", 2, 3))
sketch7.addConstraint(Sketcher.Constraint("Equal", 3, 4))
sketch7.addConstraint(Sketcher.Constraint("Equal", 4, 5))
sketch7.addConstraint(Sketcher.Constraint("Equal", 5, 6))
sketch7.addConstraint(Sketcher.Constraint("Equal", 6, 7))
sketch7.addConstraint(Sketcher.Constraint("Horizontal", 2, 3, 3, 3))
sketch7.addConstraint(Sketcher.Constraint("Horizontal", 1, 3, 4, 3))
sketch7.addConstraint(Sketcher.Constraint("Horizontal", 0, 3, 5, 3))
sketch7.addConstraint(Sketcher.Constraint("Horizontal", 6, 3, 7, 3))
sketch7.addConstraint(Sketcher.Constraint("Vertical", 0, 3, 1, 3))
sketch7.addConstraint(Sketcher.Constraint("Vertical", 4, 3, 5, 3))
sketch7.addConstraint(Sketcher.Constraint("Vertical", 3, 3, 6, 3))
sketch7.addConstraint(Sketcher.Constraint("Vertical", 2, 3, 7, 3))
sketch7.addConstraint(Sketcher.Constraint("Diameter", 0, Q("4.6 mm")))
sketch7.addConstraint(Sketcher.Constraint("DistanceY", 0, 3, 2, 3, Q("35 mm")))
sketch7.addConstraint(Sketcher.Constraint("DistanceX", 1, 3, 3, 3, Q("35 mm")))
sketch7.addConstraint(Sketcher.Constraint("DistanceX", 2, 3, 4, 3, Q("35 mm")))
sketch7.addConstraint(Sketcher.Constraint("DistanceY", 6, 3, 4, 3, Q("35 mm")))
sketch7.addConstraint(Sketcher.Constraint("DistanceY", 0, 3, 1, 3, Q("28.9 mm")))
sketch7.addConstraint(Sketcher.Constraint("DistanceX", 1, 3, 2, 3, Q("6.1 mm")))
sketch7.addConstraint(Sketcher.Constraint("DistanceX", 0, 3, -1, 1, Q("45.45 mm")))
sketch7.addConstraint(Sketcher.Constraint("DistanceY", 0, 3, -1, 1, Q("39.35 mm")))
doc.recompute()
hole = body.newObject("PartDesign::Hole", "Hole")
hole.Profile = sketch7
hole.ThreadType = "None"
hole.Diameter = 4.6
hole.DepthType = "ThroughAll"

doc.recompute()
